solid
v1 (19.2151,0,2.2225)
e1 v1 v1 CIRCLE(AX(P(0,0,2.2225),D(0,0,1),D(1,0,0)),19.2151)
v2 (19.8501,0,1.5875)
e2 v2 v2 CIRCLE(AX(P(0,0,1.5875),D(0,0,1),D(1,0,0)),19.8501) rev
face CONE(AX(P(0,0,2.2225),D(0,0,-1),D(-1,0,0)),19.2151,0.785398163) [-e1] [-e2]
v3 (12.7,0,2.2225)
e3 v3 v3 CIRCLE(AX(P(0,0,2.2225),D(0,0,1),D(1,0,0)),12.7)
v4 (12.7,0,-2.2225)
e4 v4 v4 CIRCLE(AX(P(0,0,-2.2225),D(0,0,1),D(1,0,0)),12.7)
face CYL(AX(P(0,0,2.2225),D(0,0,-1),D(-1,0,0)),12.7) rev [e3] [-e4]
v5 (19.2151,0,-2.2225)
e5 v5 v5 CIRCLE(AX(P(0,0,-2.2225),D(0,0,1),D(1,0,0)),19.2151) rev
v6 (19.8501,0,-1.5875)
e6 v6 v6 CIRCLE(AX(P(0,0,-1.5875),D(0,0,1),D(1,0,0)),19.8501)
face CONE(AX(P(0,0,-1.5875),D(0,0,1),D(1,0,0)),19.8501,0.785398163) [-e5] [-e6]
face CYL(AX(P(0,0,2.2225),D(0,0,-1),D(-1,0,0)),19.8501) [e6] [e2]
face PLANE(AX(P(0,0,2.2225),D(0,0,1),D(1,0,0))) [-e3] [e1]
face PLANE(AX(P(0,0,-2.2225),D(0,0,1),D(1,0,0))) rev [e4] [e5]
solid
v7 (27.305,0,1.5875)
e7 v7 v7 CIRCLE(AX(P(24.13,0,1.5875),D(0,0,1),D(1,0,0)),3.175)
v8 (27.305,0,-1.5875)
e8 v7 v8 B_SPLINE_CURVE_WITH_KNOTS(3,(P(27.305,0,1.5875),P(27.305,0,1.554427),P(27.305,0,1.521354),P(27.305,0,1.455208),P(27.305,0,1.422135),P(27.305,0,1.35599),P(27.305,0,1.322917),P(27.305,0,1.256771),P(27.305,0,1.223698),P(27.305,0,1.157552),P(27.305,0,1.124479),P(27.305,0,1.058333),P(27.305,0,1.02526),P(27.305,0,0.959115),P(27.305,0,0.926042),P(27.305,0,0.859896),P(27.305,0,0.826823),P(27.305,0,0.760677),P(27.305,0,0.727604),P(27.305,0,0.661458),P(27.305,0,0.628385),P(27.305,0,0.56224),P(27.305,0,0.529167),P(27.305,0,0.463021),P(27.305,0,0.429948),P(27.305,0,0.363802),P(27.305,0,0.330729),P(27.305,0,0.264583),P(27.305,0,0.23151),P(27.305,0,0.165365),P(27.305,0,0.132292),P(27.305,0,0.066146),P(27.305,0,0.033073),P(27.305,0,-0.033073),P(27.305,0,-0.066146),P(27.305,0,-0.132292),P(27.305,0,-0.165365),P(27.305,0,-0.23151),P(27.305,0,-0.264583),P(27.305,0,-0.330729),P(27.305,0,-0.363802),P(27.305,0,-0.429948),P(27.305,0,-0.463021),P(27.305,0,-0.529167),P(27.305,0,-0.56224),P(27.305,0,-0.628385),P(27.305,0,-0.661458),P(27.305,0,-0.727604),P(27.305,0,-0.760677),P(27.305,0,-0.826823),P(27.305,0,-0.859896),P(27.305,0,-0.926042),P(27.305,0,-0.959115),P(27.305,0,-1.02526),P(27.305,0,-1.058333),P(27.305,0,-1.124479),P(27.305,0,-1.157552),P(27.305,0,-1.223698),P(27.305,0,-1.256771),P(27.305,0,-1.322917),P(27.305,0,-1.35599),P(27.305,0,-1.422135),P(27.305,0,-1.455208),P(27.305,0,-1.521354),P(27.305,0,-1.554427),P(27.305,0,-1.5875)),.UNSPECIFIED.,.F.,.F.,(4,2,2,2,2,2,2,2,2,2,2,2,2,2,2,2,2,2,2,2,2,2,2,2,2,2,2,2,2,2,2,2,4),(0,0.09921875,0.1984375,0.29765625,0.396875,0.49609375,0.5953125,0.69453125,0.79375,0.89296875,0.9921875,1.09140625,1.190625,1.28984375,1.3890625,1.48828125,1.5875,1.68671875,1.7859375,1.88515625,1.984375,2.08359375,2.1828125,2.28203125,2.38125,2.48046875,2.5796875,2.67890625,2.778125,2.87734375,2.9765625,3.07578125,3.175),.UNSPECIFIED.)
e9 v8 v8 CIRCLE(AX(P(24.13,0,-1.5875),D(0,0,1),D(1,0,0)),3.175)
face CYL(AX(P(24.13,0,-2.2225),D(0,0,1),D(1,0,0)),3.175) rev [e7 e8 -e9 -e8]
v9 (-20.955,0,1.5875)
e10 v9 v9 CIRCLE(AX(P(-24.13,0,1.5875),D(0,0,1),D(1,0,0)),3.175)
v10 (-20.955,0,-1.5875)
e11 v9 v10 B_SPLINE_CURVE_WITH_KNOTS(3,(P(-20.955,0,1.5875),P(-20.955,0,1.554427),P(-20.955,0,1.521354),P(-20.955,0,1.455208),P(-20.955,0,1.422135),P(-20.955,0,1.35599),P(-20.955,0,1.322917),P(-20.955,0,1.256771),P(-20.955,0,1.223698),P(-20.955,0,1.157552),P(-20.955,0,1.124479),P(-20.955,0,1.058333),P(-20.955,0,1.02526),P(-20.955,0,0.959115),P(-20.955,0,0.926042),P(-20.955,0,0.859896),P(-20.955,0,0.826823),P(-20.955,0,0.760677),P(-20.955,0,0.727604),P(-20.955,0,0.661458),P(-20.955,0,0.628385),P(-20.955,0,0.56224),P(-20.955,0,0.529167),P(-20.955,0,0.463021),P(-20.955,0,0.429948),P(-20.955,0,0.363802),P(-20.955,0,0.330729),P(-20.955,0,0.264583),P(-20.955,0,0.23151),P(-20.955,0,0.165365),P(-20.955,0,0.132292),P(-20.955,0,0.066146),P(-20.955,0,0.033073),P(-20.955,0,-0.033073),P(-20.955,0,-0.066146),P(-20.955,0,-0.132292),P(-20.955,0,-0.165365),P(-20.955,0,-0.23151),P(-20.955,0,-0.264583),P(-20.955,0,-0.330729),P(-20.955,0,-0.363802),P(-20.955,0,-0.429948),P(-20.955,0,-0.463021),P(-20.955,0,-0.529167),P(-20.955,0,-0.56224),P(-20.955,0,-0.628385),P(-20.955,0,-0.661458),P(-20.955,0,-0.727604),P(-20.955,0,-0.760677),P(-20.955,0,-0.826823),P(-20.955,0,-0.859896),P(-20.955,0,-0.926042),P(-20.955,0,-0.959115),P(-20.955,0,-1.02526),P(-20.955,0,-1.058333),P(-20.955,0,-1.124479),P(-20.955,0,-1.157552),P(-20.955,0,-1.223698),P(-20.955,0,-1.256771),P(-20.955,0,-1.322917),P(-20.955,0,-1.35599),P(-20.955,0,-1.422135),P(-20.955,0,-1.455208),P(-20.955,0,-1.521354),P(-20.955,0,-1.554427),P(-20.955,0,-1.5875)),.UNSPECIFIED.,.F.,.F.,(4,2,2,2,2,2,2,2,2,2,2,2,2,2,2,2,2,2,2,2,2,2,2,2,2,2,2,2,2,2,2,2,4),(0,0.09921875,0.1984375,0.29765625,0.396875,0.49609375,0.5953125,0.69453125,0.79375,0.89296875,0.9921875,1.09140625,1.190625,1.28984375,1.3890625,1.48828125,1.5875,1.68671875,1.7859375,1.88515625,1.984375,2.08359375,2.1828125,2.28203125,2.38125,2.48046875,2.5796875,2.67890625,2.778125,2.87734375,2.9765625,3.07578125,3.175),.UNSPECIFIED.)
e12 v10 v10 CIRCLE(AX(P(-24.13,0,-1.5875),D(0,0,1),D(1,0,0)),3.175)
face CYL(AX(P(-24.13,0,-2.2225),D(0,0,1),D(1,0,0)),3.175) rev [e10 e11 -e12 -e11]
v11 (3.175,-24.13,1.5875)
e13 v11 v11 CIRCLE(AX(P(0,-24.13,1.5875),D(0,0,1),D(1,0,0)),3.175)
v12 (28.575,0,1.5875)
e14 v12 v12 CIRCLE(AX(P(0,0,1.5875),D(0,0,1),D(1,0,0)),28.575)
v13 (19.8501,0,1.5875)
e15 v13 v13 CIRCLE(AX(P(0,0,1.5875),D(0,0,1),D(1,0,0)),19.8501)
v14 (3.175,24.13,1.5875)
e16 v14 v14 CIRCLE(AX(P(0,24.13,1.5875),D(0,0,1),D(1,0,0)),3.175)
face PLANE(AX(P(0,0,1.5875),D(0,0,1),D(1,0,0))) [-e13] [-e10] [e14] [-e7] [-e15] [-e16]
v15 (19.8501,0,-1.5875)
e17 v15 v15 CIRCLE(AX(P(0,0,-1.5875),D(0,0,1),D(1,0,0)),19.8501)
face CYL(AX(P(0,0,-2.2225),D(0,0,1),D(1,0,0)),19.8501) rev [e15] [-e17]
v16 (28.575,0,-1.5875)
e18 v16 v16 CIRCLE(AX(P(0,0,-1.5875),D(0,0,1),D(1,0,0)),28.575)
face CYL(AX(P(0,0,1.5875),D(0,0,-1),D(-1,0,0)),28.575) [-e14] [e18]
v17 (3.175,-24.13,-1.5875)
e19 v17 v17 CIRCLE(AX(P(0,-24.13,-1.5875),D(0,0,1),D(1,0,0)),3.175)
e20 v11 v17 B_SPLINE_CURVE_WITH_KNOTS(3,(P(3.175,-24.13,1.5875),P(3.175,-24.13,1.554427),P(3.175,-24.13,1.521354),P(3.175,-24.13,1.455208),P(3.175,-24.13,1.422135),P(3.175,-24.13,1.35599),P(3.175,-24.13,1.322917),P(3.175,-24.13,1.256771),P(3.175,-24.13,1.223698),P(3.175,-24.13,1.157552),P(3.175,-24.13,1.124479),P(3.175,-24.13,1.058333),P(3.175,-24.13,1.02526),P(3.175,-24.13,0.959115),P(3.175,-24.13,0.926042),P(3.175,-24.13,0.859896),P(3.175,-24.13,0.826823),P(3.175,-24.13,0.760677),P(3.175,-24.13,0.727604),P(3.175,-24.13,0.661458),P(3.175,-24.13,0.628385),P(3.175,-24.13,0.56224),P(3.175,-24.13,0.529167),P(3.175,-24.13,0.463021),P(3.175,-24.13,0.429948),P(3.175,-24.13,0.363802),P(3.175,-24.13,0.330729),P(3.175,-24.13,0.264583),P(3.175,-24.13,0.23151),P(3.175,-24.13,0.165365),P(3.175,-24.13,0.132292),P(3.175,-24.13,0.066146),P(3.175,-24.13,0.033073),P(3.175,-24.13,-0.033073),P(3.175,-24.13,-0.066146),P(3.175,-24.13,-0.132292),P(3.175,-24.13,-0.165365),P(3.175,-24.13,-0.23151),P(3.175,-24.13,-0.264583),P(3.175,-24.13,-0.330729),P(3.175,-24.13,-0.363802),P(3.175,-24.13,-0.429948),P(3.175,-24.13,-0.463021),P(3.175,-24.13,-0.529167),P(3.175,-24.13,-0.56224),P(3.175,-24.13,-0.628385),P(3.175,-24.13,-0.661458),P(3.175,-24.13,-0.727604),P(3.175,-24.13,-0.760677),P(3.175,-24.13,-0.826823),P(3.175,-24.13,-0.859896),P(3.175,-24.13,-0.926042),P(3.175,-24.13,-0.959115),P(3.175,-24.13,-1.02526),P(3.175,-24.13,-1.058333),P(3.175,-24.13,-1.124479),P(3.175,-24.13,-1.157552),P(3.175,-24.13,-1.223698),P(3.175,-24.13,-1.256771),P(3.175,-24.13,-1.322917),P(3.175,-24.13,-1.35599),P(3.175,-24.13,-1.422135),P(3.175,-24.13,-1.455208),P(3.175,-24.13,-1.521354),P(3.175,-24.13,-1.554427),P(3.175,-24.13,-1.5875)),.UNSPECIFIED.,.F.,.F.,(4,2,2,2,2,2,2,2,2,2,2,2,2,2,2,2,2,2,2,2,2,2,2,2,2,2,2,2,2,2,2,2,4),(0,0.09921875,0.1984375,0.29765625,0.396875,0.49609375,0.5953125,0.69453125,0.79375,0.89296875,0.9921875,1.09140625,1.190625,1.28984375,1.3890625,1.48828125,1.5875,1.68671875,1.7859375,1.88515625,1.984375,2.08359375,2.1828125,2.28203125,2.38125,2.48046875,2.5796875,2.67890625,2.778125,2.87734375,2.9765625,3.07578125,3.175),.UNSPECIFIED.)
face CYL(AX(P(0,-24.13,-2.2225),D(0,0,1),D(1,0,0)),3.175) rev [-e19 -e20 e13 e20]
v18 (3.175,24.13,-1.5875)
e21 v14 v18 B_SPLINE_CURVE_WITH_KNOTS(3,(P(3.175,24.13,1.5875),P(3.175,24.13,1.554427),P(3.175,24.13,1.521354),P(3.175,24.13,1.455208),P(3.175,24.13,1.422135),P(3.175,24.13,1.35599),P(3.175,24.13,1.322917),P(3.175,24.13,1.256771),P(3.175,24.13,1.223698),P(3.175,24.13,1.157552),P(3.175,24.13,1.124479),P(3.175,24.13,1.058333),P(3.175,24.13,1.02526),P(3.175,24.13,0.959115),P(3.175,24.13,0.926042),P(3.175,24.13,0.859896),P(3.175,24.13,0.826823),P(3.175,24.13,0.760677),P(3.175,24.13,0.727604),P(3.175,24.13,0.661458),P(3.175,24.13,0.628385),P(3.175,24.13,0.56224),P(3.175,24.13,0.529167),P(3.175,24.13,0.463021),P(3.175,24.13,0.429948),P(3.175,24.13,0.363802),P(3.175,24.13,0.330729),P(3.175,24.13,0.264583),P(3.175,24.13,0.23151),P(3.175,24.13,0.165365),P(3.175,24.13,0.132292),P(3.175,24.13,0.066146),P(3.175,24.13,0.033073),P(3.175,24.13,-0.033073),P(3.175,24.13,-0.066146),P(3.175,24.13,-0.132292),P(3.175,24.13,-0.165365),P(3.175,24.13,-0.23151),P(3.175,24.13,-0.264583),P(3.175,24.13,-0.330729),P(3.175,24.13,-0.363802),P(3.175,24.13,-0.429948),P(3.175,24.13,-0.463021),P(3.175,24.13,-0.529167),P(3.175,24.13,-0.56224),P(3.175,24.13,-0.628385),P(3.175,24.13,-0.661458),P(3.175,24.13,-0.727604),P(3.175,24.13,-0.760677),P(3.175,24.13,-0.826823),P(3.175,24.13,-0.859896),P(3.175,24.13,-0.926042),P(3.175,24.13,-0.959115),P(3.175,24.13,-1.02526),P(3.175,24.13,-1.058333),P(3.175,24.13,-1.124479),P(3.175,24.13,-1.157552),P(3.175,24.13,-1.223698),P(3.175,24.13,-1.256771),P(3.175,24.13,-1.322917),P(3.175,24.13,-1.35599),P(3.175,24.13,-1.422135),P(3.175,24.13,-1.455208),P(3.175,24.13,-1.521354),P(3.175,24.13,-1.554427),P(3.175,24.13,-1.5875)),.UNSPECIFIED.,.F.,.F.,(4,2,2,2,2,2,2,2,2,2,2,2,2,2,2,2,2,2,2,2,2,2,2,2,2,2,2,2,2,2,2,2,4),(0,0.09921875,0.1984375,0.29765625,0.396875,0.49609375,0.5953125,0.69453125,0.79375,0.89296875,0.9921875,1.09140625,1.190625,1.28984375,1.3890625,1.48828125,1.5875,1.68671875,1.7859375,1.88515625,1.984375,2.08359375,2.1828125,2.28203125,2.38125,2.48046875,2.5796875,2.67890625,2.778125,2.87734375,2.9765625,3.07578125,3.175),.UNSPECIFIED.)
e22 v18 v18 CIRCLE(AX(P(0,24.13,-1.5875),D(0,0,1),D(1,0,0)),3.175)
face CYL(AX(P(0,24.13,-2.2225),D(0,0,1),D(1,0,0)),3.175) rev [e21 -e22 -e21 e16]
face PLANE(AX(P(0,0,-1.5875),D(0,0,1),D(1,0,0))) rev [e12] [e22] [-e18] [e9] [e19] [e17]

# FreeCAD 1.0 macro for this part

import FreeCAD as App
import Part
import Sketcher
from FreeCAD import Vector
Q = App.Units.Quantity


def edges_at(feature, points):
    """Names of the edges that pass closest to the given points."""
    edges = feature.Shape.Edges
    near = lambda p: min(range(len(edges)), key=lambda i: edges[i].distToShape(Part.Vertex(*p))[0])
    return sorted({f"Edge{near(p) + 1}" for p in points})

doc = App.newDocument("Part")
params = doc.addObject("Spreadsheet::Sheet", "Params")
for row, (alias, value) in enumerate([
    ("sketch1_diameter", "1 in"),
    ("sketch1_diameter2", "2.25 in"),
    ("pad1_length", "0.125 in"),
    ("sketch2_diameter", "1.563 in"),
    ("sketch3_diameter", "0.25 in"),
    ("sketch4_diameter", "1 in"),
    ("sketch4_diameter2", "1.563 in"),
    ("pad2_length", "0.175 in"),
    ("chamfer_size", "0.025 in"),
], start=1):
    params.set(f"A{row}", alias)
    params.set(f"B{row}", "=" + value)
    params.setAlias(f"B{row}", alias)

body = doc.addObject("PartDesign::Body", "Body")

# Sketch on XY plane
sketch1 = body.newObject("Sketcher::SketchObject", "Sketch")
sketch1.AttachmentSupport = (doc.getObject("XY_Plane"), [""])
sketch1.MapMode = "FlatFace"
sketch1.addGeometry([
    Part.Circle(Vector(0, 0, 0), Vector(0, 0, 1), 29),
    Part.Circle(Vector(0, 0, 0), Vector(0, 0, 1), 13),
], False)
sketch1.addConstraint([
    Sketcher.Constraint("Coincident", 0, 3, -1, 1),
    Sketcher.Constraint("Coincident", 1, 3, -1, 1),
    Sketcher.Constraint("Diameter", 1, Q("1 in")),
    Sketcher.Constraint("Diameter", 0, Q("2.25 in")),
])
sketch1.setExpression("Constraints[2]", "Params.sketch1_diameter")
sketch1.setExpression("Constraints[3]", "Params.sketch1_diameter2")
pad1 = body.newObject("PartDesign::Pad", "Pad")
pad1.Profile = sketch1
pad1.setExpression("Length", "Params.pad1_length")
pad1.Midplane = True

# Sketch on XY plane
sketch2 = body.newObject("Sketcher::SketchObject", "Sketch001")
sketch2.AttachmentSupport = (doc.getObject("XY_Plane"), [""])
sketch2.MapMode = "FlatFace"
sketch2.addGeometry(Part.Circle(Vector(0, 0, 0), Vector(0, 0, 1), 20), False)
sketch2.addConstraint([
    Sketcher.Constraint("Coincident", 0, 3, -1, 1),
    Sketcher.Constraint("Diameter", 0, Q("1.563 in")),
])
sketch2.setExpression("Constraints[1]", "Params.sketch2_diameter")
pocket1 = body.newObject("PartDesign::Pocket", "Pocket")
pocket1.Profile = sketch2
pocket1.Type = "ThroughAll"
pocket1.Midplane = True

# Sketch on XY plane
sketch3 = body.newObject("Sketcher::SketchObject", "Sketch002")
sketch3.AttachmentSupport = (doc.getObject("XY_Plane"), [""])
sketch3.MapMode = "FlatFace"
sketch3.AttachmentOffset = App.Placement(Vector(0, 0, 0.0625 * 25.4), App.Rotation())
sketch3.addGeometry([
    Part.Circle(Vector(0, 24.1, 0), Vector(0, 0, 1), 3.2),
    Part.Circle(Vector(24.1, 0, 0), Vector(0, 0, 1), 3.2),
    Part.Circle(Vector(0, -24.1, 0), Vector(0, 0, 1), 3.2),
    Part.Circle(Vector(-24.1, 0, 0), Vector(0, 0, 1), 3.2),
], False)
sketch3.addConstraint([
    Sketcher.Constraint("Equal", 0, 1),
    Sketcher.Constraint("Equal", 1, 2),
    Sketcher.Constraint("Equal", 2, 3),
    Sketcher.Constraint("Symmetric", 0, 3, 2, 3, -1, 1),
    Sketcher.Constraint("Symmetric", 1, 3, 3, 3, -1, 1),
    Sketcher.Constraint("PointOnObject", 0, 3, -2),
    Sketcher.Constraint("PointOnObject", 1, 3, -1),
    Sketcher.Constraint("Diameter", 0, Q("0.25 in")),
    Sketcher.Constraint("DistanceY", 2, 3, 0, 3, Q("1.9 in")),
    Sketcher.Constraint("DistanceX", 3, 3, 1, 3, Q("1.9 in")),
])
sketch3.setExpression("Constraints[7]", "Params.sketch3_diameter")
pocket2 = body.newObject("PartDesign::Pocket", "Pocket001")
pocket2.Profile = sketch3
pocket2.Type = "ThroughAll"
body2 = doc.addObject("PartDesign::Body", "Body001")

# Sketch on XY plane
sketch4 = body2.newObject("Sketcher::SketchObject", "Sketch003")
sketch4.AttachmentSupport = (doc.getObject("XY_Plane001"), [""])
sketch4.MapMode = "FlatFace"
sketch4.addGeometry([
    Part.Circle(Vector(0, 0, 0), Vector(0, 0, 1), 20),
    Part.Circle(Vector(0, 0, 0), Vector(0, 0, 1), 13),
], False)
sketch4.addConstraint([
    Sketcher.Constraint("Coincident", 0, 3, -1, 1),
    Sketcher.Constraint("Coincident", 1, 3, -1, 1),
    Sketcher.Constraint("Diameter", 1, Q("1 in")),
    Sketcher.Constraint("Diameter", 0, Q("1.563 in")),
])
sketch4.setExpression("Constraints[2]", "Params.sketch4_diameter")
sketch4.setExpression("Constraints[3]", "Params.sketch4_diameter2")
pad2 = body2.newObject("PartDesign::Pad", "Pad001")
pad2.Profile = sketch4
pad2.setExpression("Length", "Params.pad2_length")
pad2.Midplane = True
doc.recompute()

chamfer = body2.newObject("PartDesign::Chamfer", "Chamfer")
chamfer.Base = (pad2, edges_at(pad2, [(-19.85, 0, -2.223), (-19.85, 0, 2.223)]))
chamfer.setExpression("Size", "Params.chamfer_size")

doc.recompute()
